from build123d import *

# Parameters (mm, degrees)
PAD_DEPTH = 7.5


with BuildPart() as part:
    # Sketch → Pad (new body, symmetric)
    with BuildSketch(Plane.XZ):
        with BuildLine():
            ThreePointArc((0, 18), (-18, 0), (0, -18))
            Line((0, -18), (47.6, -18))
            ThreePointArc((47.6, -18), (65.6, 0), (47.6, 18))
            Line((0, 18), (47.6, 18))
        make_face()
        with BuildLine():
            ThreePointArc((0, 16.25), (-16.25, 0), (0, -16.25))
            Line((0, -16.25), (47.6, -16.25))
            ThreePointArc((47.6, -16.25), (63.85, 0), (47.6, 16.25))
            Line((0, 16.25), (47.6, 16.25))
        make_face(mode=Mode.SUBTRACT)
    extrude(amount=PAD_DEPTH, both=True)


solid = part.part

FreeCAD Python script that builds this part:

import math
import FreeCAD as App
import Part
import Sketcher
from FreeCAD import Vector
Q = App.Units.Quantity

doc = App.newDocument("Part")
body = doc.addObject("PartDesign::Body", "Body")

# Sketch on XZ plane
sketch1 = body.newObject("Sketcher::SketchObject", "Sketch")
sketch1.AttachmentSupport = (doc.getObject("XZ_Plane"), [""])
sketch1.MapMode = "FlatFace"
sketch1.addGeometry([
    Part.ArcOfCircle(Part.Circle(Vector(0, 0, 0), Vector(0, 0, 1), 18), math.radians(90), math.radians(270)),  # 0
    Part.LineSegment(Vector(0, -18, 0), Vector(48, -18, 0)),  # 1
    Part.ArcOfCircle(Part.Circle(Vector(48, 0, 0), Vector(0, 0, 1), 18), math.radians(-90), math.radians(90)),  # 2
    Part.LineSegment(Vector(48, 18, 0), Vector(0, 18, 0)),  # 3
    Part.ArcOfCircle(Part.Circle(Vector(0, 0, 0), Vector(0, 0, 1), 16), math.radians(90), math.radians(270)),  # 4
    Part.LineSegment(Vector(0, 16, 0), Vector(48, 16, 0)),  # 5
    Part.ArcOfCircle(Part.Circle(Vector(48, 0, 0), Vector(0, 0, 1), 16), math.radians(-90), math.radians(90)),  # 6
    Part.LineSegment(Vector(48, -16, 0), Vector(0, -16, 0)),  # 7
], False)
sketch1.addConstraint([
    Sketcher.Constraint("Tangent", 0, 2, 1, 1),
    Sketcher.Constraint("Tangent", 1, 2, 2, 1),
    Sketcher.Constraint("Tangent", 2, 2, 3, 1),
    Sketcher.Constraint("Tangent", 3, 2, 0, 1),
    Sketcher.Constraint("Tangent", 4, 1, 5, 1),
    Sketcher.Constraint("Tangent", 5, 2, 6, 2),
    Sketcher.Constraint("Tangent", 6, 1, 7, 1),
    Sketcher.Constraint("Tangent", 7, 2, 4, 2),
    Sketcher.Constraint("Horizontal", 1),
    Sketcher.Constraint("Horizontal", 3),
    Sketcher.Constraint("Horizontal", 5),
    Sketcher.Constraint("Horizontal", 7),
    Sketcher.Constraint("Coincident", 0, 3, -1, 1),
    Sketcher.Constraint("Coincident", 4, 3, -1, 1),
    Sketcher.Constraint("Vertical", 6, 3, 1, 2),
    Sketcher.Constraint("Radius", 0, Q("18 mm")),
    Sketcher.Constraint("Radius", 4, Q("16.25 mm")),
    Sketcher.Constraint("DistanceX", 1, 1, 1, 2, Q("47.6 mm")),
])
pad1 = body.newObject("PartDesign::Pad", "Pad")
pad1.Profile = sketch1
pad1.Length = 15
pad1.Midplane = True

doc.recompute()
